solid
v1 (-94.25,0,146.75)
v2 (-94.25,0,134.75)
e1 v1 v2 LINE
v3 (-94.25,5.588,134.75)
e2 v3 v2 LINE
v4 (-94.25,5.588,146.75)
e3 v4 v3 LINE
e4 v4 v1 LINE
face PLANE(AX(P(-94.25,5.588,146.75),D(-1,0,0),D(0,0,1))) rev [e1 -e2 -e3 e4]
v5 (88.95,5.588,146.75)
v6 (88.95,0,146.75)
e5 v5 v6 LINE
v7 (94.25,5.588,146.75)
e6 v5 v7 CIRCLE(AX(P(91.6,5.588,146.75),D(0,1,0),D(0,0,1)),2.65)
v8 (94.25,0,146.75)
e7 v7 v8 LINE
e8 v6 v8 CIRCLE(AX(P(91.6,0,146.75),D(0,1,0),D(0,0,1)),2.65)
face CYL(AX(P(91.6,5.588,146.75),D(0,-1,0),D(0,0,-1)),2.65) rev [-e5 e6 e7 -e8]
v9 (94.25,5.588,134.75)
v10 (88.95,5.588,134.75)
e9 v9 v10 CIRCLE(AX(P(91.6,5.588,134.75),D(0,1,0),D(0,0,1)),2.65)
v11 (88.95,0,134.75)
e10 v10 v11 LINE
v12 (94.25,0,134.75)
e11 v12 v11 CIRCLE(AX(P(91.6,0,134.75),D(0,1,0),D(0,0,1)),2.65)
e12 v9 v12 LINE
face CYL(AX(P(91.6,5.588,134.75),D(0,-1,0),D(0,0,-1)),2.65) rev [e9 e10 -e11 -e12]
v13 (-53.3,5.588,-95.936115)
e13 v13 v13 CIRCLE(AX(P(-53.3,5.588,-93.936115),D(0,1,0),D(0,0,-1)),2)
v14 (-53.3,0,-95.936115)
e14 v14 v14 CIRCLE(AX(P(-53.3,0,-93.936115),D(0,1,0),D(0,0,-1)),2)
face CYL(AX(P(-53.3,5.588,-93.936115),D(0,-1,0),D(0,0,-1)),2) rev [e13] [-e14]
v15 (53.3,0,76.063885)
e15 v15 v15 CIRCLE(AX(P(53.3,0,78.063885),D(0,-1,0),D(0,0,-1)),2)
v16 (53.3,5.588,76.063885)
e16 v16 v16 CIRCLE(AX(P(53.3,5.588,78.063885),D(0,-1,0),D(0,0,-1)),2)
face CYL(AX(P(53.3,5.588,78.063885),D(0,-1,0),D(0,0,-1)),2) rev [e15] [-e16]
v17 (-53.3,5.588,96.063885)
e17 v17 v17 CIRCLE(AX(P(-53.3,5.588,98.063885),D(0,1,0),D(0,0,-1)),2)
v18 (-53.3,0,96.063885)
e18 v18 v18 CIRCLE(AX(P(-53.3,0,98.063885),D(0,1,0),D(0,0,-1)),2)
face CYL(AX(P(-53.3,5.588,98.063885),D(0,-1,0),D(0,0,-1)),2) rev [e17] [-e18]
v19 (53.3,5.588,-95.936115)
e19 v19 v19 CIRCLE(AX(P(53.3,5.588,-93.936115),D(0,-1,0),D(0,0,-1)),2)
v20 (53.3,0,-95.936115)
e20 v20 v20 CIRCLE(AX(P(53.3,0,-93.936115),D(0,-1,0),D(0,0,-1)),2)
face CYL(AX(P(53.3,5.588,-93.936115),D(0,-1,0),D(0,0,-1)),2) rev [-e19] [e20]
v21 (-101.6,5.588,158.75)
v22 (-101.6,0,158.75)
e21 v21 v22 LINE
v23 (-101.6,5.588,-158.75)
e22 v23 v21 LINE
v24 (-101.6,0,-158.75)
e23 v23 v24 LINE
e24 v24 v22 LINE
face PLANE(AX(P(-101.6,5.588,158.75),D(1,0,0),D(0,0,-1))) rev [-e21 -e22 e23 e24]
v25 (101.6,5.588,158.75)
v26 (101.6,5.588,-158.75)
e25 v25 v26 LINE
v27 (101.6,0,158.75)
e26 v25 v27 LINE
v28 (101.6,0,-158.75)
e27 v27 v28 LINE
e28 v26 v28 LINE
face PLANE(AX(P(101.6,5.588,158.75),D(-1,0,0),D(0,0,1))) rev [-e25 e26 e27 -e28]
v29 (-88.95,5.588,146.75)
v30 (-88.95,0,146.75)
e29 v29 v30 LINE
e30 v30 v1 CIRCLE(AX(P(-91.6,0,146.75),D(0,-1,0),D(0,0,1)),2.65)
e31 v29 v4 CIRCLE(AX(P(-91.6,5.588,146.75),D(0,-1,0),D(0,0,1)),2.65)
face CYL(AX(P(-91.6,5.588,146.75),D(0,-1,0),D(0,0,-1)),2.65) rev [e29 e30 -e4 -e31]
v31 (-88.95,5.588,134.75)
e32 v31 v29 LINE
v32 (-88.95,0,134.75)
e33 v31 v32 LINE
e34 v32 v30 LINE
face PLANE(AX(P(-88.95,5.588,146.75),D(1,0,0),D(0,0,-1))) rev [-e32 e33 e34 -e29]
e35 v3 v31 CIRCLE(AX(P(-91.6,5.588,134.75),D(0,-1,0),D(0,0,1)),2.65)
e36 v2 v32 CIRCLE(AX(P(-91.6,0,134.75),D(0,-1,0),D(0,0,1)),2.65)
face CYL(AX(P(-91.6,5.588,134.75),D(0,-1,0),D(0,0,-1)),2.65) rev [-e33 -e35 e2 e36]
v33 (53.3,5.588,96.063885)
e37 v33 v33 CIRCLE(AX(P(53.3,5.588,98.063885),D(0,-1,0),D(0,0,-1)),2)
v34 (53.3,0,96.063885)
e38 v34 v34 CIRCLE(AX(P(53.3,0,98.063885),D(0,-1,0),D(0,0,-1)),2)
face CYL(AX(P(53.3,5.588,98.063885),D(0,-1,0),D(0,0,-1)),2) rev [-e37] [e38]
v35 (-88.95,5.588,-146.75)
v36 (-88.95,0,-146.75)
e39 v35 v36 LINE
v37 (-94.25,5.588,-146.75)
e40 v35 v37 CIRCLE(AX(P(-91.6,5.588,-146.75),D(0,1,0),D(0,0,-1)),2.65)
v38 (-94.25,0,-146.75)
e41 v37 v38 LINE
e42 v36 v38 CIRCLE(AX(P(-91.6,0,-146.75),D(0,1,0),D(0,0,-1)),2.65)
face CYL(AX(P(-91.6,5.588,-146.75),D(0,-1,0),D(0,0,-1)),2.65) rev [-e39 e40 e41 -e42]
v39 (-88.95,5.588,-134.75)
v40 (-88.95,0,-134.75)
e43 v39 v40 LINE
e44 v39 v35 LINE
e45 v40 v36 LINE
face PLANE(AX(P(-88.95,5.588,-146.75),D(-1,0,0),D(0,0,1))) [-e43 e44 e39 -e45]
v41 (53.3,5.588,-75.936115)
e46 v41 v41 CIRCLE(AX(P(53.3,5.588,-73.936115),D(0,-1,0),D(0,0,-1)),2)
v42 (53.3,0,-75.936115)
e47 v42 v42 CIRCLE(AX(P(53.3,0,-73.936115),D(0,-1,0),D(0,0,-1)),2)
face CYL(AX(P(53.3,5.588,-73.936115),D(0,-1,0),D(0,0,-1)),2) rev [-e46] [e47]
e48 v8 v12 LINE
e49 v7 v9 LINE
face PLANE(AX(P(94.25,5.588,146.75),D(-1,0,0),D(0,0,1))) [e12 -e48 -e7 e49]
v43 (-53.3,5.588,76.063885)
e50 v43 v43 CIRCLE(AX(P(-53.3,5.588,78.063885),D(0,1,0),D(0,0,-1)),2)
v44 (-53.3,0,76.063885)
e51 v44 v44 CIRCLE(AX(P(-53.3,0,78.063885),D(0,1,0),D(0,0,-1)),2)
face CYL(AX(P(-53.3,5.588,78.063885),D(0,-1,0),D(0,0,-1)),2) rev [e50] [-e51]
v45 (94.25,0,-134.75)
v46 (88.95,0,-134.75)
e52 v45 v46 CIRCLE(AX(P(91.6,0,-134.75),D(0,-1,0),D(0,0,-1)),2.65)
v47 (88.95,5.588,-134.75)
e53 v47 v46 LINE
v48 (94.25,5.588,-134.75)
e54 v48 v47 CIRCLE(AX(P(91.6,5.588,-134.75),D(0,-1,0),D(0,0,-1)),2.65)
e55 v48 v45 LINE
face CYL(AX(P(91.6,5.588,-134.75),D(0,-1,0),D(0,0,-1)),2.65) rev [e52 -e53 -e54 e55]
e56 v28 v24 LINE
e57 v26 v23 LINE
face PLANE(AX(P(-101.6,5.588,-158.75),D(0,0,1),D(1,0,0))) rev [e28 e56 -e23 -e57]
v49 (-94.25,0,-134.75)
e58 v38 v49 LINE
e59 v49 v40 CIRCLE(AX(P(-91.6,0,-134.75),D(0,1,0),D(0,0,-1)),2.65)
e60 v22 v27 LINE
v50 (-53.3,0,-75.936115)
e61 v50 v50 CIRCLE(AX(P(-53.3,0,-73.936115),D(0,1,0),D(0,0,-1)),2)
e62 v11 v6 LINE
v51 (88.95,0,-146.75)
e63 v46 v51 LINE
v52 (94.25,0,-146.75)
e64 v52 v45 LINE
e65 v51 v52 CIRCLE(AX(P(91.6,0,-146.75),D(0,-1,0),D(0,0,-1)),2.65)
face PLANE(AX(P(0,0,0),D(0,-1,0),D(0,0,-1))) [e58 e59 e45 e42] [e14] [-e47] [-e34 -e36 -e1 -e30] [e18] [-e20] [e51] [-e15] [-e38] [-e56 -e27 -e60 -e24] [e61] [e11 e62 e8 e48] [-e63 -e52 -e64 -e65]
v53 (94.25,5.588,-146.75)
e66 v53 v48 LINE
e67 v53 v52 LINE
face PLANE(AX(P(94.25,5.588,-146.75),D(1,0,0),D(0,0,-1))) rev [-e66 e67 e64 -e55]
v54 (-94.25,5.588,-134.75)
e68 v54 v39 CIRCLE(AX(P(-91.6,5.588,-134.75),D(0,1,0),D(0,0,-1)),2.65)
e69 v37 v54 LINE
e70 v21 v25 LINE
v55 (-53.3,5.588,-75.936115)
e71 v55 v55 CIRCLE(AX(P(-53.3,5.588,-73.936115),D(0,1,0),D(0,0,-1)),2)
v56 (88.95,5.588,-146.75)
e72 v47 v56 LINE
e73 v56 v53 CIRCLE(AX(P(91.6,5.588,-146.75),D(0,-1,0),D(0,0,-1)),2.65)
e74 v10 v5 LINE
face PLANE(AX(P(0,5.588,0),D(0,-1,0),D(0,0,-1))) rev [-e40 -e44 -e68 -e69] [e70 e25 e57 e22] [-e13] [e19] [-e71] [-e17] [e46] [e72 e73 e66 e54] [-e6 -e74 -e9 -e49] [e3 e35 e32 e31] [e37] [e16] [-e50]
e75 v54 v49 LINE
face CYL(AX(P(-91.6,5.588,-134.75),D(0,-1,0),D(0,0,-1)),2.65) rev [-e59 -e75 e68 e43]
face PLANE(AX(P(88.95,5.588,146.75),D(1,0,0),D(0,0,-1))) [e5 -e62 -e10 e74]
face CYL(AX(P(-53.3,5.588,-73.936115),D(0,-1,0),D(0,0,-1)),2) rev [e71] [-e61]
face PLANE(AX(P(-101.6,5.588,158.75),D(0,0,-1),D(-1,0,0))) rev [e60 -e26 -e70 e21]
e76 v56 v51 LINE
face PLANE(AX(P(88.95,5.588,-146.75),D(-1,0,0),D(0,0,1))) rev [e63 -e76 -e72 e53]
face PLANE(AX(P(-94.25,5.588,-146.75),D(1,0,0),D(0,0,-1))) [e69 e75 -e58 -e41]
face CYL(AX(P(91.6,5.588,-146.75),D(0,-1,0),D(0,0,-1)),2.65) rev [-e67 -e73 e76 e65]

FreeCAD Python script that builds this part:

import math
import FreeCAD as App
import Part
import Sketcher

doc = App.newDocument("Part")
body = doc.addObject("PartDesign::Body", "Body")

# Sketch on XZ plane
sketch1 = doc.addObject("Sketcher::SketchObject", "Sketch")
body.addObject(sketch1)
sketch1.AttachmentSupport = (doc.XZ_Plane, [""])
sketch1.MapMode = "FlatFace"
sketch1.addGeometry([
    Part.LineSegment(App.Vector(-102, -159, 0), App.Vector(-102, 159, 0)),
    Part.LineSegment(App.Vector(-102, 159, 0), App.Vector(102, 159, 0)),
    Part.LineSegment(App.Vector(102, 159, 0), App.Vector(102, -159, 0)),
    Part.LineSegment(App.Vector(102, -159, 0), App.Vector(-102, -159, 0)),
], False)
sketch1.addConstraint([
    Sketcher.Constraint("Coincident", 0, 2, 1, 1),
    Sketcher.Constraint("Coincident", 1, 2, 2, 1),
    Sketcher.Constraint("Coincident", 2, 2, 3, 1),
    Sketcher.Constraint("Coincident", 3, 2, 0, 1),
    Sketcher.Constraint("Vertical", 0),
    Sketcher.Constraint("Horizontal", 1),
    Sketcher.Constraint("Vertical", 2),
    Sketcher.Constraint("Horizontal", 3),
    Sketcher.Constraint("Symmetric", 0, 2, 2, 2, -1, 1),
    Sketcher.Constraint("DistanceX", 1, 1, 1, 2, 203.2),
    Sketcher.Constraint("DistanceY", 0, 1, 0, 2, 317.5),
])
pad1 = doc.addObject("PartDesign::Pad", "Pad")
body.addObject(pad1)
pad1.Profile = sketch1
pad1.Length = 5.588
pad1.Reversed = True

# Sketch on XZ plane
sketch2 = doc.addObject("Sketcher::SketchObject", "Sketch001")
body.addObject(sketch2)
sketch2.AttachmentSupport = (doc.XZ_Plane, [""])
sketch2.MapMode = "FlatFace"
sketch2.addGeometry([
    Part.Circle(App.Vector(53.3, -93.9, 0), App.Vector(0, 0, 1), 2),
    Part.Circle(App.Vector(53.3, -73.9, 0), App.Vector(0, 0, 1), 2),
    Part.Circle(App.Vector(53.3, 78.1, 0), App.Vector(0, 0, 1), 2),
    Part.Circle(App.Vector(53.3, 98.1, 0), App.Vector(0, 0, 1), 2),
], False)
sketch2.addConstraint([
    Sketcher.Constraint("Equal", 0, 1),
    Sketcher.Constraint("Equal", 1, 2),
    Sketcher.Constraint("Equal", 2, 3),
    Sketcher.Constraint("Vertical", 0, 3, 1, 3),
    Sketcher.Constraint("Vertical", 1, 3, 2, 3),
    Sketcher.Constraint("Vertical", 2, 3, 3, 3),
    Sketcher.Constraint("Diameter", 0, 4.0),
    Sketcher.Constraint("DistanceY", 0, 3, 1, 3, 20.0),
    Sketcher.Constraint("DistanceY", 1, 3, 2, 3, 152.0),
    Sketcher.Constraint("DistanceY", 2, 3, 3, 3, 20.0),
    Sketcher.Constraint("DistanceX", -1, 1, 0, 3, 53.3),
    Sketcher.Constraint("DistanceY", 0, 3, -1, 1, 93.936115),
])
pocket1 = doc.addObject("PartDesign::Pocket", "Pocket")
body.addObject(pocket1)
pocket1.Profile = sketch2
pocket1.Type = "ThroughAll"
doc.recompute()

mirrored = doc.addObject("PartDesign::Mirrored", "Mirrored")
body.addObject(mirrored)
mirrored.Originals = [pocket1]
mirrored.MirrorPlane = (doc.YZ_Plane, [""])
body.Tip = mirrored

# Sketch on XZ plane
sketch3 = doc.addObject("Sketcher::SketchObject", "Sketch002")
body.addObject(sketch3)
sketch3.AttachmentSupport = (doc.XZ_Plane, [""])
sketch3.MapMode = "FlatFace"
sketch3.AttachmentOffset = App.Placement(App.Vector(0, 0, -5.588), App.Rotation())
sketch3.addGeometry(Part.Circle(App.Vector(91.6, -136.8, 0), App.Vector(0, 0, 1), 2.6), False)
sketch3.addConstraint([
    Sketcher.Constraint("Diameter", 0, 5.3),
    Sketcher.Constraint("DistanceX", -1, 1, 0, 3, 91.6),
    Sketcher.Constraint("DistanceY", 0, 3, -1, 1, 136.812),
])
pocket2 = doc.addObject("PartDesign::Pocket", "Pocket001")
body.addObject(pocket2)
pocket2.Profile = sketch3
pocket2.Type = "ThroughAll"
pocket2.Reversed = True

# Sketch on XZ plane
sketch4 = doc.addObject("Sketcher::SketchObject", "Sketch003")
body.addObject(sketch4)
sketch4.AttachmentSupport = (doc.XZ_Plane, [""])
sketch4.MapMode = "FlatFace"
sketch4.addGeometry([
    Part.LineSegment(App.Vector(89, -134.8, 0), App.Vector(89, -146.8, 0)),
    Part.ArcOfCircle(Part.Circle(App.Vector(91.6, -146.8, 0), App.Vector(0, 0, 1), 2.6), math.radians(180), math.radians(360)),
    Part.LineSegment(App.Vector(94.2, -146.8, 0), App.Vector(94.2, -134.8, 0)),
    Part.ArcOfCircle(Part.Circle(App.Vector(91.6, -134.8, 0), App.Vector(0, 0, 1), 2.6), math.radians(0), math.radians(180)),
], False)
sketch4.addConstraint([
    Sketcher.Constraint("Tangent", 0, 2, 1, 1),
    Sketcher.Constraint("Tangent", 1, 2, 2, 1),
    Sketcher.Constraint("Tangent", 2, 2, 3, 1),
    Sketcher.Constraint("Tangent", 3, 2, 0, 1),
    Sketcher.Constraint("Vertical", 0),
    Sketcher.Constraint("Vertical", 2),
    Sketcher.Constraint("DistanceY", 0, 2, 0, 1, 12.0),
    Sketcher.Constraint("Radius", 1, 2.65),
    Sketcher.Constraint("DistanceX", -1, 1, 1, 3, 91.6),
    Sketcher.Constraint("DistanceY", 1, 3, -1, 1, 146.75),
])
pocket3 = doc.addObject("PartDesign::Pocket", "Pocket002")
body.addObject(pocket3)
pocket3.Profile = sketch4
pocket3.Type = "ThroughAll"
doc.recompute()

mirrored2 = doc.addObject("PartDesign::Mirrored", "Mirrored001")
body.addObject(mirrored2)
mirrored2.Originals = [pocket3]
mirrored2.MirrorPlane = (doc.YZ_Plane, [""])
body.Tip = mirrored2
doc.recompute()

mirrored3 = doc.addObject("PartDesign::Mirrored", "Mirrored002")
body.addObject(mirrored3)
mirrored3.Originals = [pocket3]
mirrored3.MirrorPlane = (doc.XY_Plane, [""])
body.Tip = mirrored3

# Sketch on XZ plane
sketch5 = doc.addObject("Sketcher::SketchObject", "Sketch004")
body.addObject(sketch5)
sketch5.AttachmentSupport = (doc.XZ_Plane, [""])
sketch5.MapMode = "FlatFace"
sketch5.addGeometry([
    Part.LineSegment(App.Vector(-89, 134.8, 0), App.Vector(-89, 146.8, 0)),
    Part.ArcOfCircle(Part.Circle(App.Vector(-91.6, 146.8, 0), App.Vector(0, 0, 1), 2.6), math.radians(0), math.radians(180)),
    Part.LineSegment(App.Vector(-94.2, 146.8, 0), App.Vector(-94.2, 134.8, 0)),
    Part.ArcOfCircle(Part.Circle(App.Vector(-91.6, 134.8, 0), App.Vector(0, 0, 1), 2.6), math.radians(180), math.radians(360)),
], False)
sketch5.addConstraint([
    Sketcher.Constraint("Tangent", 0, 2, 1, 1),
    Sketcher.Constraint("Tangent", 1, 2, 2, 1),
    Sketcher.Constraint("Tangent", 2, 2, 3, 1),
    Sketcher.Constraint("Tangent", 3, 2, 0, 1),
    Sketcher.Constraint("Vertical", 0),
    Sketcher.Constraint("Vertical", 2),
    Sketcher.Constraint("DistanceY", 0, 1, 0, 2, 12.0),
    Sketcher.Constraint("Radius", 1, 2.65),
    Sketcher.Constraint("DistanceX", 1, 3, -1, 1, 91.6),
    Sketcher.Constraint("DistanceY", -1, 1, 1, 3, 146.75),
])
pocket4 = doc.addObject("PartDesign::Pocket", "Pocket003")
body.addObject(pocket4)
pocket4.Profile = sketch5
pocket4.Type = "ThroughAll"

doc.recompute()
